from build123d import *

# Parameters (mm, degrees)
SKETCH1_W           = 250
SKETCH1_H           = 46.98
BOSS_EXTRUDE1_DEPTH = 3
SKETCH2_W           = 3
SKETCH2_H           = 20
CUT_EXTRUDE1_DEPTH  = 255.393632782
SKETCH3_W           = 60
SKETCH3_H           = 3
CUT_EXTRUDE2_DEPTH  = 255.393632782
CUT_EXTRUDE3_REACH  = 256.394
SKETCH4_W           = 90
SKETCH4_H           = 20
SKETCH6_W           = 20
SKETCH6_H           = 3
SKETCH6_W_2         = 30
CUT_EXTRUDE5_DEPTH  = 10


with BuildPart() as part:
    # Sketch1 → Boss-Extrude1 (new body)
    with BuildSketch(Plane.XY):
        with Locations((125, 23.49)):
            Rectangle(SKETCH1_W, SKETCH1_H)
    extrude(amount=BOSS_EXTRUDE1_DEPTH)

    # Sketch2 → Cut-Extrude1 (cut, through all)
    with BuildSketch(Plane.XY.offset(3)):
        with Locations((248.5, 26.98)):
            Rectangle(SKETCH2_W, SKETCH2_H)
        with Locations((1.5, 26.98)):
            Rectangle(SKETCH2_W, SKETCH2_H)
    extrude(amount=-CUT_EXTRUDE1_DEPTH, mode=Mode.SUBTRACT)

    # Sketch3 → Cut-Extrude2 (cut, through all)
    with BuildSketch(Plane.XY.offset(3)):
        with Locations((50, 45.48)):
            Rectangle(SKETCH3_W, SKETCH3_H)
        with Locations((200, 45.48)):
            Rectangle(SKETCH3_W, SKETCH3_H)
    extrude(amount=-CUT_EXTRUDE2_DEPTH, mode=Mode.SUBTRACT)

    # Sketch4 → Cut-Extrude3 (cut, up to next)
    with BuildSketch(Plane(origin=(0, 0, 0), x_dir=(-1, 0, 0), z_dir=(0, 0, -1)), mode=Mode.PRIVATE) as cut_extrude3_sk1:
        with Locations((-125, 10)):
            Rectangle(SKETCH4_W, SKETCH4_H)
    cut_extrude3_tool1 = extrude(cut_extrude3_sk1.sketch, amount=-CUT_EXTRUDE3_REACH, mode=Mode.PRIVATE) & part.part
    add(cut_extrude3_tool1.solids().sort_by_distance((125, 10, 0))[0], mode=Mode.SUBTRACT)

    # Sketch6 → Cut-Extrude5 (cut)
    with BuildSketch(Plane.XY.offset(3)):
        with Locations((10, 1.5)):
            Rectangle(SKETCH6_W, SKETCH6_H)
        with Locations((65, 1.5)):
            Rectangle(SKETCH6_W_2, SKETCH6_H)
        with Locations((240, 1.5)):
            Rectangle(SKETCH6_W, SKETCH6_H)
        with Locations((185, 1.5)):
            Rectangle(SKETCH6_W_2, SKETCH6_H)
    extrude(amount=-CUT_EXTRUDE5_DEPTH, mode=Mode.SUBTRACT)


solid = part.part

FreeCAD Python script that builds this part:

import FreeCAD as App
import Part
import Sketcher

doc = App.newDocument("Part")
params = doc.addObject("Spreadsheet::Sheet", "Params")
for row, (alias, value) in enumerate([
    ("sketch1_width", "250 mm"),
    ("sketch1_height", "46.98 mm"),
    ("pad1_length", "3 mm"),
    ("sketch2_width", "3 mm"),
    ("sketch2_height", "20 mm"),
    ("sketch3_width", "60 mm"),
    ("sketch3_height", "3 mm"),
    ("sketch4_width", "90 mm"),
    ("sketch4_height", "20 mm"),
    ("sketch5_width", "20 mm"),
    ("sketch5_width2", "30 mm"),
    ("sketch5_height", "3 mm"),
    ("pocket4_length", "10 mm"),
], start=1):
    params.set(f"A{row}", alias)
    params.set(f"B{row}", "=" + value)
    params.setAlias(f"B{row}", alias)

body = doc.addObject("PartDesign::Body", "Body")

sketch1 = doc.addObject("Sketcher::SketchObject", "Sketch")
body.addObject(sketch1)
sketch1.AttachmentSupport = (doc.XY_Plane, [""])
sketch1.MapMode = "FlatFace"
sketch1.addGeometry(Part.LineSegment(App.Vector(0, 47, 0), App.Vector(0, 0, 0)), False)
sketch1.addGeometry(Part.LineSegment(App.Vector(0, 0, 0), App.Vector(250, 0, 0)), False)
sketch1.addGeometry(Part.LineSegment(App.Vector(250, 0, 0), App.Vector(250, 47, 0)), False)
sketch1.addGeometry(Part.LineSegment(App.Vector(250, 47, 0), App.Vector(0, 47, 0)), False)
sketch1.addConstraint(Sketcher.Constraint("Coincident", 0, 2, 1, 1))
sketch1.addConstraint(Sketcher.Constraint("Coincident", 1, 2, 2, 1))
sketch1.addConstraint(Sketcher.Constraint("Coincident", 2, 2, 3, 1))
sketch1.addConstraint(Sketcher.Constraint("Coincident", 3, 2, 0, 1))
sketch1.addConstraint(Sketcher.Constraint("Vertical", 0))
sketch1.addConstraint(Sketcher.Constraint("Horizontal", 1))
sketch1.addConstraint(Sketcher.Constraint("Vertical", 2))
sketch1.addConstraint(Sketcher.Constraint("Horizontal", 3))
sketch1.addConstraint(Sketcher.Constraint("Coincident", 0, 2, -1, 1))
sketch1.addConstraint(Sketcher.Constraint("DistanceX", 1, 1, 1, 2, 250.0))
sketch1.addConstraint(Sketcher.Constraint("DistanceY", 0, 2, 0, 1, 46.98))
sketch1.setExpression("Constraints[9]", "Params.sketch1_width")
sketch1.setExpression("Constraints[10]", "Params.sketch1_height")
pad1 = doc.addObject("PartDesign::Pad", "Pad")
body.addObject(pad1)
pad1.Profile = sketch1
pad1.setExpression("Length", "Params.pad1_length")

sketch2 = doc.addObject("Sketcher::SketchObject", "Sketch001")
body.addObject(sketch2)
sketch2.AttachmentSupport = (doc.XY_Plane, [""])
sketch2.MapMode = "FlatFace"
sketch2.AttachmentOffset = App.Placement(App.Vector(0, 0, 3), App.Rotation())
sketch2.addGeometry(Part.LineSegment(App.Vector(247, 37, 0), App.Vector(247, 17, 0)), False)
sketch2.addGeometry(Part.LineSegment(App.Vector(247, 17, 0), App.Vector(250, 17, 0)), False)
sketch2.addGeometry(Part.LineSegment(App.Vector(250, 17, 0), App.Vector(250, 37, 0)), False)
sketch2.addGeometry(Part.LineSegment(App.Vector(250, 37, 0), App.Vector(247, 37, 0)), False)
sketch2.addGeometry(Part.LineSegment(App.Vector(0, 37, 0), App.Vector(0, 17, 0)), False)
sketch2.addGeometry(Part.LineSegment(App.Vector(0, 17, 0), App.Vector(3, 17, 0)), False)
sketch2.addGeometry(Part.LineSegment(App.Vector(3, 17, 0), App.Vector(3, 37, 0)), False)
sketch2.addGeometry(Part.LineSegment(App.Vector(3, 37, 0), App.Vector(0, 37, 0)), False)
sketch2.addConstraint(Sketcher.Constraint("Coincident", 0, 2, 1, 1))
sketch2.addConstraint(Sketcher.Constraint("Coincident", 1, 2, 2, 1))
sketch2.addConstraint(Sketcher.Constraint("Coincident", 2, 2, 3, 1))
sketch2.addConstraint(Sketcher.Constraint("Coincident", 3, 2, 0, 1))
sketch2.addConstraint(Sketcher.Constraint("Coincident", 4, 2, 5, 1))
sketch2.addConstraint(Sketcher.Constraint("Coincident", 5, 2, 6, 1))
sketch2.addConstraint(Sketcher.Constraint("Coincident", 6, 2, 7, 1))
sketch2.addConstraint(Sketcher.Constraint("Coincident", 7, 2, 4, 1))
sketch2.addConstraint(Sketcher.Constraint("Vertical", 0))
sketch2.addConstraint(Sketcher.Constraint("Horizontal", 1))
sketch2.addConstraint(Sketcher.Constraint("Vertical", 2))
sketch2.addConstraint(Sketcher.Constraint("Horizontal", 3))
sketch2.addConstraint(Sketcher.Constraint("Vertical", 4))
sketch2.addConstraint(Sketcher.Constraint("Horizontal", 5))
sketch2.addConstraint(Sketcher.Constraint("Vertical", 6))
sketch2.addConstraint(Sketcher.Constraint("Horizontal", 7))
sketch2.addConstraint(Sketcher.Constraint("PointOnObject", 4, 2, -2))
sketch2.addConstraint(Sketcher.Constraint("Horizontal", 1, 2, 4, 2))
sketch2.addConstraint(Sketcher.Constraint("Horizontal", 3, 2, 6, 2))
sketch2.addConstraint(Sketcher.Constraint("Equal", 3, 5))
sketch2.addConstraint(Sketcher.Constraint("DistanceX", 1, 1, 1, 2, 3.0))
sketch2.addConstraint(Sketcher.Constraint("DistanceY", 0, 2, 0, 1, 20.0))
sketch2.addConstraint(Sketcher.Constraint("DistanceX", -1, 1, 0, 2, 247.0))
sketch2.addConstraint(Sketcher.Constraint("DistanceY", -1, 1, 0, 2, 16.98))
sketch2.setExpression("Constraints[20]", "Params.sketch2_width")
sketch2.setExpression("Constraints[21]", "Params.sketch2_height")
pocket1 = doc.addObject("PartDesign::Pocket", "Pocket")
body.addObject(pocket1)
pocket1.Profile = sketch2
pocket1.Type = "ThroughAll"

sketch3 = doc.addObject("Sketcher::SketchObject", "Sketch002")
body.addObject(sketch3)
sketch3.AttachmentSupport = (doc.XY_Plane, [""])
sketch3.MapMode = "FlatFace"
sketch3.AttachmentOffset = App.Placement(App.Vector(0, 0, 3), App.Rotation())
sketch3.addGeometry(Part.LineSegment(App.Vector(20, 47, 0), App.Vector(20, 44, 0)), False)
sketch3.addGeometry(Part.LineSegment(App.Vector(20, 44, 0), App.Vector(80, 44, 0)), False)
sketch3.addGeometry(Part.LineSegment(App.Vector(80, 44, 0), App.Vector(80, 47, 0)), False)
sketch3.addGeometry(Part.LineSegment(App.Vector(80, 47, 0), App.Vector(20, 47, 0)), False)
sketch3.addGeometry(Part.LineSegment(App.Vector(170, 47, 0), App.Vector(170, 44, 0)), False)
sketch3.addGeometry(Part.LineSegment(App.Vector(170, 44, 0), App.Vector(230, 44, 0)), False)
sketch3.addGeometry(Part.LineSegment(App.Vector(230, 44, 0), App.Vector(230, 47, 0)), False)
sketch3.addGeometry(Part.LineSegment(App.Vector(230, 47, 0), App.Vector(170, 47, 0)), False)
sketch3.addConstraint(Sketcher.Constraint("Coincident", 0, 2, 1, 1))
sketch3.addConstraint(Sketcher.Constraint("Coincident", 1, 2, 2, 1))
sketch3.addConstraint(Sketcher.Constraint("Coincident", 2, 2, 3, 1))
sketch3.addConstraint(Sketcher.Constraint("Coincident", 3, 2, 0, 1))
sketch3.addConstraint(Sketcher.Constraint("Coincident", 4, 2, 5, 1))
sketch3.addConstraint(Sketcher.Constraint("Coincident", 5, 2, 6, 1))
sketch3.addConstraint(Sketcher.Constraint("Coincident", 6, 2, 7, 1))
sketch3.addConstraint(Sketcher.Constraint("Coincident", 7, 2, 4, 1))
sketch3.addConstraint(Sketcher.Constraint("Vertical", 0))
sketch3.addConstraint(Sketcher.Constraint("Horizontal", 1))
sketch3.addConstraint(Sketcher.Constraint("Vertical", 2))
sketch3.addConstraint(Sketcher.Constraint("Horizontal", 3))
sketch3.addConstraint(Sketcher.Constraint("Vertical", 4))
sketch3.addConstraint(Sketcher.Constraint("Horizontal", 5))
sketch3.addConstraint(Sketcher.Constraint("Vertical", 6))
sketch3.addConstraint(Sketcher.Constraint("Horizontal", 7))
sketch3.addConstraint(Sketcher.Constraint("Horizontal", 1, 2, 4, 2))
sketch3.addConstraint(Sketcher.Constraint("Horizontal", 3, 2, 6, 2))
sketch3.addConstraint(Sketcher.Constraint("Equal", 3, 5))
sketch3.addConstraint(Sketcher.Constraint("DistanceX", 1, 1, 1, 2, 60.0))
sketch3.addConstraint(Sketcher.Constraint("DistanceY", 0, 2, 0, 1, 3.0))
sketch3.addConstraint(Sketcher.Constraint("DistanceX", -1, 1, 0, 2, 20.0))
sketch3.addConstraint(Sketcher.Constraint("DistanceX", -1, 1, 4, 2, 170.0))
sketch3.addConstraint(Sketcher.Constraint("DistanceY", -1, 1, 0, 2, 43.98))
sketch3.setExpression("Constraints[19]", "Params.sketch3_width")
sketch3.setExpression("Constraints[20]", "Params.sketch3_height")
pocket2 = doc.addObject("PartDesign::Pocket", "Pocket001")
body.addObject(pocket2)
pocket2.Profile = sketch3
pocket2.Type = "ThroughAll"

sketch4 = doc.addObject("Sketcher::SketchObject", "Sketch003")
body.addObject(sketch4)
sketch4.AttachmentSupport = (doc.XY_Plane, [""])
sketch4.MapMode = "FlatFace"
sketch4.addGeometry(Part.LineSegment(App.Vector(170, 20, 0), App.Vector(170, 0, 0)), False)
sketch4.addGeometry(Part.LineSegment(App.Vector(170, 0, 0), App.Vector(80, 0, 0)), False)
sketch4.addGeometry(Part.LineSegment(App.Vector(80, 0, 0), App.Vector(80, 20, 0)), False)
sketch4.addGeometry(Part.LineSegment(App.Vector(80, 20, 0), App.Vector(170, 20, 0)), False)
sketch4.addConstraint(Sketcher.Constraint("Coincident", 0, 2, 1, 1))
sketch4.addConstraint(Sketcher.Constraint("Coincident", 1, 2, 2, 1))
sketch4.addConstraint(Sketcher.Constraint("Coincident", 2, 2, 3, 1))
sketch4.addConstraint(Sketcher.Constraint("Coincident", 3, 2, 0, 1))
sketch4.addConstraint(Sketcher.Constraint("Vertical", 0))
sketch4.addConstraint(Sketcher.Constraint("Horizontal", 1))
sketch4.addConstraint(Sketcher.Constraint("Vertical", 2))
sketch4.addConstraint(Sketcher.Constraint("Horizontal", 3))
sketch4.addConstraint(Sketcher.Constraint("PointOnObject", 0, 2, -1))
sketch4.addConstraint(Sketcher.Constraint("DistanceX", 1, 2, 1, 1, 90.0))
sketch4.addConstraint(Sketcher.Constraint("DistanceY", 0, 2, 0, 1, 20.0))
sketch4.addConstraint(Sketcher.Constraint("DistanceX", -1, 1, 0, 2, 170.0))
sketch4.setExpression("Constraints[9]", "Params.sketch4_width")
sketch4.setExpression("Constraints[10]", "Params.sketch4_height")
pocket3 = doc.addObject("PartDesign::Pocket", "Pocket002")
body.addObject(pocket3)
pocket3.Profile = sketch4
pocket3.Type = "UpToFirst"
pocket3.Reversed = True

sketch5 = doc.addObject("Sketcher::SketchObject", "Sketch004")
body.addObject(sketch5)
sketch5.AttachmentSupport = (doc.XY_Plane, [""])
sketch5.MapMode = "FlatFace"
sketch5.AttachmentOffset = App.Placement(App.Vector(0, 0, 3), App.Rotation())
sketch5.addGeometry(Part.LineSegment(App.Vector(0, 3, 0), App.Vector(0, 0, 0)), False)
sketch5.addGeometry(Part.LineSegment(App.Vector(0, 0, 0), App.Vector(20, 0, 0)), False)
sketch5.addGeometry(Part.LineSegment(App.Vector(20, 0, 0), App.Vector(20, 3, 0)), False)
sketch5.addGeometry(Part.LineSegment(App.Vector(20, 3, 0), App.Vector(0, 3, 0)), False)
sketch5.addGeometry(Part.LineSegment(App.Vector(50, 3, 0), App.Vector(50, 0, 0)), False)
sketch5.addGeometry(Part.LineSegment(App.Vector(50, 0, 0), App.Vector(80, 0, 0)), False)
sketch5.addGeometry(Part.LineSegment(App.Vector(80, 0, 0), App.Vector(80, 3, 0)), False)
sketch5.addGeometry(Part.LineSegment(App.Vector(80, 3, 0), App.Vector(50, 3, 0)), False)
sketch5.addGeometry(Part.LineSegment(App.Vector(230, 3, 0), App.Vector(230, 0, 0)), False)
sketch5.addGeometry(Part.LineSegment(App.Vector(230, 0, 0), App.Vector(250, 0, 0)), False)
sketch5.addGeometry(Part.LineSegment(App.Vector(250, 0, 0), App.Vector(250, 3, 0)), False)
sketch5.addGeometry(Part.LineSegment(App.Vector(250, 3, 0), App.Vector(230, 3, 0)), False)
sketch5.addGeometry(Part.LineSegment(App.Vector(170, 3, 0), App.Vector(170, 0, 0)), False)
sketch5.addGeometry(Part.LineSegment(App.Vector(170, 0, 0), App.Vector(200, 0, 0)), False)
sketch5.addGeometry(Part.LineSegment(App.Vector(200, 0, 0), App.Vector(200, 3, 0)), False)
sketch5.addGeometry(Part.LineSegment(App.Vector(200, 3, 0), App.Vector(170, 3, 0)), False)
sketch5.addConstraint(Sketcher.Constraint("Coincident", 0, 2, 1, 1))
sketch5.addConstraint(Sketcher.Constraint("Coincident", 1, 2, 2, 1))
sketch5.addConstraint(Sketcher.Constraint("Coincident", 2, 2, 3, 1))
sketch5.addConstraint(Sketcher.Constraint("Coincident", 3, 2, 0, 1))
sketch5.addConstraint(Sketcher.Constraint("Coincident", 4, 2, 5, 1))
sketch5.addConstraint(Sketcher.Constraint("Coincident", 5, 2, 6, 1))
sketch5.addConstraint(Sketcher.Constraint("Coincident", 6, 2, 7, 1))
sketch5.addConstraint(Sketcher.Constraint("Coincident", 7, 2, 4, 1))
sketch5.addConstraint(Sketcher.Constraint("Coincident", 8, 2, 9, 1))
sketch5.addConstraint(Sketcher.Constraint("Coincident", 9, 2, 10, 1))
sketch5.addConstraint(Sketcher.Constraint("Coincident", 10, 2, 11, 1))
sketch5.addConstraint(Sketcher.Constraint("Coincident", 11, 2, 8, 1))
sketch5.addConstraint(Sketcher.Constraint("Coincident", 12, 2, 13, 1))
sketch5.addConstraint(Sketcher.Constraint("Coincident", 13, 2, 14, 1))
sketch5.addConstraint(Sketcher.Constraint("Coincident", 14, 2, 15, 1))
sketch5.addConstraint(Sketcher.Constraint("Coincident", 15, 2, 12, 1))
sketch5.addConstraint(Sketcher.Constraint("Vertical", 0))
sketch5.addConstraint(Sketcher.Constraint("Horizontal", 1))
sketch5.addConstraint(Sketcher.Constraint("Vertical", 2))
sketch5.addConstraint(Sketcher.Constraint("Horizontal", 3))
sketch5.addConstraint(Sketcher.Constraint("Vertical", 4))
sketch5.addConstraint(Sketcher.Constraint("Horizontal", 5))
sketch5.addConstraint(Sketcher.Constraint("Vertical", 6))
sketch5.addConstraint(Sketcher.Constraint("Horizontal", 7))
sketch5.addConstraint(Sketcher.Constraint("Vertical", 8))
sketch5.addConstraint(Sketcher.Constraint("Horizontal", 9))
sketch5.addConstraint(Sketcher.Constraint("Vertical", 10))
sketch5.addConstraint(Sketcher.Constraint("Horizontal", 11))
sketch5.addConstraint(Sketcher.Constraint("Vertical", 12))
sketch5.addConstraint(Sketcher.Constraint("Horizontal", 13))
sketch5.addConstraint(Sketcher.Constraint("Vertical", 14))
sketch5.addConstraint(Sketcher.Constraint("Horizontal", 15))
sketch5.addConstraint(Sketcher.Constraint("Coincident", 0, 2, -1, 1))
sketch5.addConstraint(Sketcher.Constraint("PointOnObject", 4, 2, -1))
sketch5.addConstraint(Sketcher.Constraint("PointOnObject", 8, 2, -1))
sketch5.addConstraint(Sketcher.Constraint("PointOnObject", 12, 2, -1))
sketch5.addConstraint(Sketcher.Constraint("Horizontal", 3, 2, 6, 2))
sketch5.addConstraint(Sketcher.Constraint("Horizontal", 7, 2, 10, 2))
sketch5.addConstraint(Sketcher.Constraint("Horizontal", 11, 2, 14, 2))
sketch5.addConstraint(Sketcher.Constraint("Equal", 3, 9))
sketch5.addConstraint(Sketcher.Constraint("Equal", 7, 13))
sketch5.addConstraint(Sketcher.Constraint("DistanceX", 1, 1, 1, 2, 20.0))
sketch5.addConstraint(Sketcher.Constraint("DistanceX", 5, 1, 5, 2, 30.0))
sketch5.addConstraint(Sketcher.Constraint("DistanceY", 0, 2, 0, 1, 3.0))
sketch5.addConstraint(Sketcher.Constraint("DistanceX", -1, 1, 4, 2, 50.0))
sketch5.addConstraint(Sketcher.Constraint("DistanceX", -1, 1, 8, 2, 230.0))
sketch5.addConstraint(Sketcher.Constraint("DistanceX", -1, 1, 12, 2, 170.0))
sketch5.setExpression("Constraints[41]", "Params.sketch5_width")
sketch5.setExpression("Constraints[42]", "Params.sketch5_width2")
sketch5.setExpression("Constraints[43]", "Params.sketch5_height")
pocket4 = doc.addObject("PartDesign::Pocket", "Pocket003")
body.addObject(pocket4)
pocket4.Profile = sketch5
pocket4.setExpression("Length", "Params.pocket4_length")

doc.recompute()
